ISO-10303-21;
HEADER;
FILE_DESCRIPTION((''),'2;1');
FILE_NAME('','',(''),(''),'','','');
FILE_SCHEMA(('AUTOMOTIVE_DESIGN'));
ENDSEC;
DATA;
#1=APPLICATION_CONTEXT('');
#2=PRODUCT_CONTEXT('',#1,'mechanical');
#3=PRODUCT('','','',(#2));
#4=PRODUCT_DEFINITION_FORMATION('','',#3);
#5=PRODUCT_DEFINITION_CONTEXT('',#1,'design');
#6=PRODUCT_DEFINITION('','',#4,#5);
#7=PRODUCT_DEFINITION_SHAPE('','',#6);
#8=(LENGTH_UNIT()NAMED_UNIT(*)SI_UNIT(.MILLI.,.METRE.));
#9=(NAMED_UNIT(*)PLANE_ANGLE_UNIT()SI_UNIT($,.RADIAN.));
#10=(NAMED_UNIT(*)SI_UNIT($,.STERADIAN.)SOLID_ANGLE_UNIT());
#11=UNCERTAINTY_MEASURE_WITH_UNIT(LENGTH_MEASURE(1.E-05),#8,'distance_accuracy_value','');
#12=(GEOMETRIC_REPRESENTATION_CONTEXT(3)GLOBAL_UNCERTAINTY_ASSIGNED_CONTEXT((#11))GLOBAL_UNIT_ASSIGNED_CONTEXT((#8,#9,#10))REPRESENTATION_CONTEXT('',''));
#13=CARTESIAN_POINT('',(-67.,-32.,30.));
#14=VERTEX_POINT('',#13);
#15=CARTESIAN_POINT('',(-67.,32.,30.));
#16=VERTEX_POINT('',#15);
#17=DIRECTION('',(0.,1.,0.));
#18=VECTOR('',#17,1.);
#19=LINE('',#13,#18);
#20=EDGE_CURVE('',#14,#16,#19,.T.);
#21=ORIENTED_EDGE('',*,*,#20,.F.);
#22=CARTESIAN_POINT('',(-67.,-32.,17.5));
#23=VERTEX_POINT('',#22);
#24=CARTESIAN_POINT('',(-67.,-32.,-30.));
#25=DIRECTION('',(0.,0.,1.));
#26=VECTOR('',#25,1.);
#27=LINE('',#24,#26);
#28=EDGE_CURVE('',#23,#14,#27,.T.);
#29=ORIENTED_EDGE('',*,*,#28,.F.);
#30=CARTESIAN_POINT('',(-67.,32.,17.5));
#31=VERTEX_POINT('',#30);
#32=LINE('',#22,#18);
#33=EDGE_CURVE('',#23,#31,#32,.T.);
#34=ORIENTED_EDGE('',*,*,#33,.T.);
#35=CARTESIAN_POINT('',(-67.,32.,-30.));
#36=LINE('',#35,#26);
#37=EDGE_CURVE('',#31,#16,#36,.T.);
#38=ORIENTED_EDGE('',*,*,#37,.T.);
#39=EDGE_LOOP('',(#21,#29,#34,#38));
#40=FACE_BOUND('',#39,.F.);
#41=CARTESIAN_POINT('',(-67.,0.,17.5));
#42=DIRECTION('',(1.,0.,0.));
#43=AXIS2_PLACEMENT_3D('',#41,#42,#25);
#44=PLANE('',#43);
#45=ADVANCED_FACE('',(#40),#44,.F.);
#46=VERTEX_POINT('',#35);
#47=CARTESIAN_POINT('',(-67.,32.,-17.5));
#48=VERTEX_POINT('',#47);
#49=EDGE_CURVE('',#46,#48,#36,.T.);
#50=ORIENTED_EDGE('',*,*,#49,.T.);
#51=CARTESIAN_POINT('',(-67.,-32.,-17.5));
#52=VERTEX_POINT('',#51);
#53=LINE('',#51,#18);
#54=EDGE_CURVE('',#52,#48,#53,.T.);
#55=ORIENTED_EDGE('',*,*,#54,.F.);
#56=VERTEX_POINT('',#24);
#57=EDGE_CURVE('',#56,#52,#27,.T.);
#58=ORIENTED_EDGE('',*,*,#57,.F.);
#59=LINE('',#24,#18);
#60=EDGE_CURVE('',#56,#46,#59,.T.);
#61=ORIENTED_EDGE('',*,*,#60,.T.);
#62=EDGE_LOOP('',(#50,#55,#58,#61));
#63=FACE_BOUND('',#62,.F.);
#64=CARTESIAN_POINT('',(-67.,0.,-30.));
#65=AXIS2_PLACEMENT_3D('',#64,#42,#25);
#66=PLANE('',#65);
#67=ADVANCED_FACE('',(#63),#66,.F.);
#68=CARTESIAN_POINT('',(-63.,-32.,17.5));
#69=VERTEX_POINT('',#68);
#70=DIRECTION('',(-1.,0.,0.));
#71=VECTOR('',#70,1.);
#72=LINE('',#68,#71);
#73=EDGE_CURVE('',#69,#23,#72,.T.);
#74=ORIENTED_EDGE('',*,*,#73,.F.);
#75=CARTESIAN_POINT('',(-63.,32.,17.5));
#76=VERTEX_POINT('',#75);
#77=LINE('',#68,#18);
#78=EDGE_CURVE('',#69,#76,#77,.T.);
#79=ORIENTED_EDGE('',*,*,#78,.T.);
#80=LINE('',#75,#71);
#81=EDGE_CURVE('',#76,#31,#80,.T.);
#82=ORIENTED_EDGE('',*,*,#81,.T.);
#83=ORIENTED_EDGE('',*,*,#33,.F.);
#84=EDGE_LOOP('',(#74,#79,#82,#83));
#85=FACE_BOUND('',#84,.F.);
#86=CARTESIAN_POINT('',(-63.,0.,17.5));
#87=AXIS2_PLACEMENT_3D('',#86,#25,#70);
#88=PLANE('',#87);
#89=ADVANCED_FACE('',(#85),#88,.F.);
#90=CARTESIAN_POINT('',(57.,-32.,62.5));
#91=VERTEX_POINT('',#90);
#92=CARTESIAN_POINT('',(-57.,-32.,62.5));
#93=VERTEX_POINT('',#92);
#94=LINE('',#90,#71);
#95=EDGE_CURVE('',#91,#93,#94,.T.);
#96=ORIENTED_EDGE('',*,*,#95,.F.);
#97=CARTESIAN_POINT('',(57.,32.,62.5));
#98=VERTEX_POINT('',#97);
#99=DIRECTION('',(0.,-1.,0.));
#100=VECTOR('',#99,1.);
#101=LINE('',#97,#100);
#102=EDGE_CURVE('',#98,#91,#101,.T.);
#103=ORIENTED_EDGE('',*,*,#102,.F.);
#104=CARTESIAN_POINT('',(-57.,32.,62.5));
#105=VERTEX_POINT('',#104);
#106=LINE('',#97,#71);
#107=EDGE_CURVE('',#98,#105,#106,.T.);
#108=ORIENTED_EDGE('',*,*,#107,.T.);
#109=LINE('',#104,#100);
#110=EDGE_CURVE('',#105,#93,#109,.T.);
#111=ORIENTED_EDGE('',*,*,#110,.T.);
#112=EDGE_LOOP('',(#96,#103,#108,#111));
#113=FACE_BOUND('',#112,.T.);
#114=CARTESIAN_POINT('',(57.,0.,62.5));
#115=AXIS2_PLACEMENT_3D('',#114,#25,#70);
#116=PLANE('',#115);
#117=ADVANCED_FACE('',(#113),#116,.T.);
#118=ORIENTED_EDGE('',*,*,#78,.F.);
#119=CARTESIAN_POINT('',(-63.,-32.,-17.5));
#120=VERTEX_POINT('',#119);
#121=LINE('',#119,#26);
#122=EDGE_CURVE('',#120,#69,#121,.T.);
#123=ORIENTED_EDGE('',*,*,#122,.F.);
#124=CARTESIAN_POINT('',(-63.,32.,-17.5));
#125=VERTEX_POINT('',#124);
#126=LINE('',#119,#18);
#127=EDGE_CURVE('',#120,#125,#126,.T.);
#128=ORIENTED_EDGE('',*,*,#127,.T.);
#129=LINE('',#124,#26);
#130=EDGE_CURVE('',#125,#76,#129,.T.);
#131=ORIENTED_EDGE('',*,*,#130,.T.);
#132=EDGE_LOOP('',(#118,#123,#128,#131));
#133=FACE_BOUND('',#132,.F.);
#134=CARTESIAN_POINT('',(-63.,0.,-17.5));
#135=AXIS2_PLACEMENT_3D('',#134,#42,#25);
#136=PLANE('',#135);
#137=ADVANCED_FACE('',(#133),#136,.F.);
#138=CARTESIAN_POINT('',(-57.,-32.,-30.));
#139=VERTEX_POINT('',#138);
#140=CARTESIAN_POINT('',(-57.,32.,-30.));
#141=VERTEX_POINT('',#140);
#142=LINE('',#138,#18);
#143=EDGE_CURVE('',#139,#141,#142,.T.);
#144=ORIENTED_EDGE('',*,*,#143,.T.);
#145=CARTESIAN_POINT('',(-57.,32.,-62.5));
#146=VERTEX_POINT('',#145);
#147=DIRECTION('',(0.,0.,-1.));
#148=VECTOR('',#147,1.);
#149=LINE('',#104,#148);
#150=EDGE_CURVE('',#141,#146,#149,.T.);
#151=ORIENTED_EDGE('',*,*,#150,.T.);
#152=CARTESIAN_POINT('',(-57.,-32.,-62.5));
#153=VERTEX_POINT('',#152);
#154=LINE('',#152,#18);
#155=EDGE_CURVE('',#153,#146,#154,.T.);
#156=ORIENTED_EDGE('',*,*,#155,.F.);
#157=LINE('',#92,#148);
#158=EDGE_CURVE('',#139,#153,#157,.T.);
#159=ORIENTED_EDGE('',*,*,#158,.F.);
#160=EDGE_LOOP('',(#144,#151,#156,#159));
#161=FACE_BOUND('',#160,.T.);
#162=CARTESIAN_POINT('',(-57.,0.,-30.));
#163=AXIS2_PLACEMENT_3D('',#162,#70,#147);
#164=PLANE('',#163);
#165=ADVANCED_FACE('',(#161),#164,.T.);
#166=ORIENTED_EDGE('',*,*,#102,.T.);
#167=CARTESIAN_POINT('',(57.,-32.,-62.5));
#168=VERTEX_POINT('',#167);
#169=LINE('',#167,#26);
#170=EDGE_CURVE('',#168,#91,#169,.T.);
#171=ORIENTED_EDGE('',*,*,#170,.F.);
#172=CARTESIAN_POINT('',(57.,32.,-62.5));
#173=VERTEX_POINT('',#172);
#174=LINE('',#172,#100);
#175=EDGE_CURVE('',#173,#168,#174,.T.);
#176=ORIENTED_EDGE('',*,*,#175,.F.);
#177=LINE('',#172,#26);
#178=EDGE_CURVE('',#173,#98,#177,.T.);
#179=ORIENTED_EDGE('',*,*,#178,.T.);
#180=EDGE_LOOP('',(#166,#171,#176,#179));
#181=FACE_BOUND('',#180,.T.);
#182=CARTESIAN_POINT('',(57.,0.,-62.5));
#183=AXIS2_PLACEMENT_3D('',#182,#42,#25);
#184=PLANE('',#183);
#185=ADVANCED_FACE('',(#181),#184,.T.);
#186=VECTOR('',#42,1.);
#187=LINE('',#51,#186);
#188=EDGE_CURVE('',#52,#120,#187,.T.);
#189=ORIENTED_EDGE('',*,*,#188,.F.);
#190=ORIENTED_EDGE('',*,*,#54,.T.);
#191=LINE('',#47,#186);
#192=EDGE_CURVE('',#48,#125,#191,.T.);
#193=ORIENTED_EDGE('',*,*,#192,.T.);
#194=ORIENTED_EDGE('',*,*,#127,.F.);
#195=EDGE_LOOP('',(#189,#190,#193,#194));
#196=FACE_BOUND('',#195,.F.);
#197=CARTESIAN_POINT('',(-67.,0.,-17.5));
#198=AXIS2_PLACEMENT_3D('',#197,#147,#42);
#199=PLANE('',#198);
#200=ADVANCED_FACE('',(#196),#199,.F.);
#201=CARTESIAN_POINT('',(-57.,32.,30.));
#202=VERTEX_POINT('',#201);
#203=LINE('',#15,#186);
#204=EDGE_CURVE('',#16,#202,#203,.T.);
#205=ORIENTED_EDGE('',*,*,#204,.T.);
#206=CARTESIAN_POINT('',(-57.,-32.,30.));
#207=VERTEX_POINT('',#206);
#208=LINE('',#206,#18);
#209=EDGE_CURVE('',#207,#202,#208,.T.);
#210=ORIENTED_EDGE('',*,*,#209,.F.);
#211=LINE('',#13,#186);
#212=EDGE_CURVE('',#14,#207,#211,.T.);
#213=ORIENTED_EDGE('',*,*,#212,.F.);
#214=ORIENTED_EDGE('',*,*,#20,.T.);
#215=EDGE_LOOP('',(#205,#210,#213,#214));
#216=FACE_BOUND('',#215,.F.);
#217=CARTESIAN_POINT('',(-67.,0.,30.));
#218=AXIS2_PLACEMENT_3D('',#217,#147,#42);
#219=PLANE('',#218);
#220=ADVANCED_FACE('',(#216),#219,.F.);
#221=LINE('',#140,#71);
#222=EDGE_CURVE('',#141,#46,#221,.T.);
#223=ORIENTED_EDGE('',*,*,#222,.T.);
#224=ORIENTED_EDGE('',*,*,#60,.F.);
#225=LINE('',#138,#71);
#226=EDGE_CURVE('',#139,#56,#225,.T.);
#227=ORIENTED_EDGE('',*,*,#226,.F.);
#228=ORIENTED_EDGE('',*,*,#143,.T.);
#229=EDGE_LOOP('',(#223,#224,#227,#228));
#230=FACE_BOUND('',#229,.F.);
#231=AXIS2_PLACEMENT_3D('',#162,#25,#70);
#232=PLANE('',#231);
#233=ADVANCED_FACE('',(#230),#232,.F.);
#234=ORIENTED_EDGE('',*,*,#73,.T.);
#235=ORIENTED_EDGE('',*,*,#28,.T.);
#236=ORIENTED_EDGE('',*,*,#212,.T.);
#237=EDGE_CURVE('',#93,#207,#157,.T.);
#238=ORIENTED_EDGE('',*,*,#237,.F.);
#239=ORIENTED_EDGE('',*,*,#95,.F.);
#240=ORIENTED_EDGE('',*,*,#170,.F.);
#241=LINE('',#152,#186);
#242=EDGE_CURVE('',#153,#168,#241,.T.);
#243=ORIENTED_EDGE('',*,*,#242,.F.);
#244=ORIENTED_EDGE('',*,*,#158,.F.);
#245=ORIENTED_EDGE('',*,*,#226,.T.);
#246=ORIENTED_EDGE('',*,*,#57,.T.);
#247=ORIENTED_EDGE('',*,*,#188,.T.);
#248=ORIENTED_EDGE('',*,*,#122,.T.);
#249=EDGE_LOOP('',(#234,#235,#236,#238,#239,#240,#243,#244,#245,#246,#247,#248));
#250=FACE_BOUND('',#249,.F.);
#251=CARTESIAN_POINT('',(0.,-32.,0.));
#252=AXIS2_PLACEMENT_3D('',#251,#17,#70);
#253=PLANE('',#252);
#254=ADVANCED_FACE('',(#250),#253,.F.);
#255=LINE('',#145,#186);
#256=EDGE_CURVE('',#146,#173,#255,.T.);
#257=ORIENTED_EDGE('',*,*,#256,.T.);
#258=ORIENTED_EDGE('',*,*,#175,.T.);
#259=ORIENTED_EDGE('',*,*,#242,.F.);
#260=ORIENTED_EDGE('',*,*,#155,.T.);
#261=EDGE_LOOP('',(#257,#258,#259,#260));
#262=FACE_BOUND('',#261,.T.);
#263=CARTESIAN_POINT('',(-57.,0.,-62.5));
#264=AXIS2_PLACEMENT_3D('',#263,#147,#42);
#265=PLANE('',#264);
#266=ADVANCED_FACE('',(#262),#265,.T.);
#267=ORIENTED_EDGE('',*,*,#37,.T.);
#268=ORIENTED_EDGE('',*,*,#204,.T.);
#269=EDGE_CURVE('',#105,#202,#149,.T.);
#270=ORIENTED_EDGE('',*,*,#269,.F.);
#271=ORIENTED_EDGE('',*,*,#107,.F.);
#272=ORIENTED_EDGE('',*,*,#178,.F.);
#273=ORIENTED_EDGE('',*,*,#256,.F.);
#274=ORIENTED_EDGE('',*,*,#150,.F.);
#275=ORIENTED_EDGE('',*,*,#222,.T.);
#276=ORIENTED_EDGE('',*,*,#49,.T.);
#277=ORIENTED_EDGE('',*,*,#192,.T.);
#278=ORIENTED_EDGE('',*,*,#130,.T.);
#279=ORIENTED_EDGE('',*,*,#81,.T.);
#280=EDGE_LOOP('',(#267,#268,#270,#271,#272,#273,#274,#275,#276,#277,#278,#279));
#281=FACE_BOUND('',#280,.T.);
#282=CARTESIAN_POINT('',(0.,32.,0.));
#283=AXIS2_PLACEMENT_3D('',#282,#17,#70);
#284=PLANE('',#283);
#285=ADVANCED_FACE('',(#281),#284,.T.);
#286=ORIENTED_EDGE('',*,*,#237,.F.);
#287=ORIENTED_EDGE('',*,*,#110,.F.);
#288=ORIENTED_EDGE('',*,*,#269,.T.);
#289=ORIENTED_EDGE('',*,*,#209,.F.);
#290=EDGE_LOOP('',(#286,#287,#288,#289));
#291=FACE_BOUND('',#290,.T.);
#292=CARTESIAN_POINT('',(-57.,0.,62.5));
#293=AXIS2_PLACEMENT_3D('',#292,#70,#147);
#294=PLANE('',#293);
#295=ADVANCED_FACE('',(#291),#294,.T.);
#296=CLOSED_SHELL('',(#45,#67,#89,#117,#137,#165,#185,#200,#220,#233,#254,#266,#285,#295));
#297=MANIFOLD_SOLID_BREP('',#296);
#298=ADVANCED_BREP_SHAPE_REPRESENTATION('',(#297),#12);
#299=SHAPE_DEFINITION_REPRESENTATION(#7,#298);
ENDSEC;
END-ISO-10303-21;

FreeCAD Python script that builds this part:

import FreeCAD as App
import Part
import Sketcher
from FreeCAD import Vector
Q = App.Units.Quantity

doc = App.newDocument("Part")
params = doc.addObject("Spreadsheet::Sheet", "Params")
for row, (alias, value) in enumerate([
    ("sketch1_width", "114 mm"),
    ("sketch1_width2", "10 mm"),
    ("sketch1_height", "35 mm"),
    ("sketch1_height2", "125 mm"),
    ("sketch1_height3", "12.5 mm"),
    ("pad1_length", "64 mm"),
], start=1):
    params.set(f"A{row}", alias)
    params.set(f"B{row}", "=" + value)
    params.setAlias(f"B{row}", alias)

body = doc.addObject("PartDesign::Body", "Body")

sketch1 = doc.addObject("Sketcher::SketchObject", "Sketch")
body.addObject(sketch1)
sketch1.AttachmentSupport = (doc.XZ_Plane, [""])
sketch1.MapMode = "FlatFace"
sketch1.addGeometry([
    Part.LineSegment(Vector(57, -62.5, 0), Vector(-57, -62.5, 0)),
    Part.LineSegment(Vector(-57, -62.5, 0), Vector(-57, -30, 0)),
    Part.LineSegment(Vector(-57, -30, 0), Vector(-67, -30, 0)),
    Part.LineSegment(Vector(-67, -30, 0), Vector(-67, -17.5, 0)),
    Part.LineSegment(Vector(-67, -17.5, 0), Vector(-63, -17.5, 0)),
    Part.LineSegment(Vector(-63, -17.5, 0), Vector(-63, 17.5, 0)),
    Part.LineSegment(Vector(-63, 17.5, 0), Vector(-67, 17.5, 0)),
    Part.LineSegment(Vector(-67, 17.5, 0), Vector(-67, 30, 0)),
    Part.LineSegment(Vector(-67, 30, 0), Vector(-57, 30, 0)),
    Part.LineSegment(Vector(-57, 30, 0), Vector(-57, 62.5, 0)),
    Part.LineSegment(Vector(-57, 62.5, 0), Vector(57, 62.5, 0)),
    Part.LineSegment(Vector(57, 62.5, 0), Vector(57, -62.5, 0)),
], False)
sketch1.addConstraint([
    Sketcher.Constraint("Coincident", 0, 2, 1, 1),
    Sketcher.Constraint("Coincident", 1, 2, 2, 1),
    Sketcher.Constraint("Coincident", 2, 2, 3, 1),
    Sketcher.Constraint("Coincident", 3, 2, 4, 1),
    Sketcher.Constraint("Coincident", 4, 2, 5, 1),
    Sketcher.Constraint("Coincident", 5, 2, 6, 1),
    Sketcher.Constraint("Coincident", 6, 2, 7, 1),
    Sketcher.Constraint("Coincident", 7, 2, 8, 1),
    Sketcher.Constraint("Coincident", 8, 2, 9, 1),
    Sketcher.Constraint("Coincident", 9, 2, 10, 1),
    Sketcher.Constraint("Coincident", 10, 2, 11, 1),
    Sketcher.Constraint("Coincident", 11, 2, 0, 1),
    Sketcher.Constraint("Horizontal", 0),
    Sketcher.Constraint("Vertical", 1),
    Sketcher.Constraint("Horizontal", 2),
    Sketcher.Constraint("Vertical", 3),
    Sketcher.Constraint("Horizontal", 4),
    Sketcher.Constraint("Vertical", 5),
    Sketcher.Constraint("Horizontal", 6),
    Sketcher.Constraint("Vertical", 7),
    Sketcher.Constraint("Horizontal", 8),
    Sketcher.Constraint("Vertical", 9),
    Sketcher.Constraint("Horizontal", 10),
    Sketcher.Constraint("Vertical", 11),
    Sketcher.Constraint("Symmetric", 0, 2, 10, 2, -1, 1),
    Sketcher.Constraint("Symmetric", 3, 2, 6, 2, -1),
    Sketcher.Constraint("Symmetric", 1, 2, 8, 2, -1),
    Sketcher.Constraint("DistanceX", 0, 2, 0, 1, Q("114 mm")),
    Sketcher.Constraint("DistanceX", 2, 2, 2, 1, Q("10 mm")),
    Sketcher.Constraint("DistanceY", 5, 1, 5, 2, Q("35 mm")),
    Sketcher.Constraint("DistanceY", 11, 2, 11, 1, Q("125 mm")),
    Sketcher.Constraint("DistanceY", 3, 1, 3, 2, Q("12.5 mm")),
    Sketcher.Constraint("DistanceX", 4, 2, 1, 2, Q("6 mm")),
])
sketch1.setExpression("Constraints[27]", "Params.sketch1_width")
sketch1.setExpression("Constraints[28]", "Params.sketch1_width2")
sketch1.setExpression("Constraints[29]", "Params.sketch1_height")
sketch1.setExpression("Constraints[30]", "Params.sketch1_height2")
sketch1.setExpression("Constraints[31]", "Params.sketch1_height3")
pad1 = doc.addObject("PartDesign::Pad", "Pad")
body.addObject(pad1)
pad1.Profile = sketch1
pad1.setExpression("Length", "Params.pad1_length")
pad1.Midplane = True

doc.recompute()
